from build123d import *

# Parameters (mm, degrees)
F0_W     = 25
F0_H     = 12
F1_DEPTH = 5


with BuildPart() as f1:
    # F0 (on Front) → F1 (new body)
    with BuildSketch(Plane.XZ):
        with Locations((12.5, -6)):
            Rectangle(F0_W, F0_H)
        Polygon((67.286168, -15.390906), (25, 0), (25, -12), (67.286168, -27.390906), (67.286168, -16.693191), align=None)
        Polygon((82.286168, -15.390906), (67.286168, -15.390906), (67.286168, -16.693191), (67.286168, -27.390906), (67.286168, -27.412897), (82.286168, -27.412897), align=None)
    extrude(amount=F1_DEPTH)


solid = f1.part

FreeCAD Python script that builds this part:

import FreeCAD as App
import Part
import Sketcher
from FreeCAD import Vector
Q = App.Units.Quantity

doc = App.newDocument("Part")
body = doc.addObject("PartDesign::Body", "Body")

# Sketch on XZ plane
sketch1 = body.newObject("Sketcher::SketchObject", "Sketch")
sketch1.AttachmentSupport = (doc.getObject("XZ_Plane"), [""])
sketch1.MapMode = "FlatFace"
sketch1.addGeometry([
    Part.LineSegment(Vector(0, 0, 0), Vector(0, -12, 0)),  # 0
    Part.LineSegment(Vector(0, -12, 0), Vector(25, -12, 0)),  # 1
    Part.LineSegment(Vector(25, -12, 0), Vector(67.286168, -27.390906, 0)),  # 2
    Part.LineSegment(Vector(67.286168, -27.390906, 0), Vector(67.286168, -27.412897, 0)),  # 3
    Part.LineSegment(Vector(67.286168, -27.412897, 0), Vector(82.286168, -27.412897, 0)),  # 4
    Part.LineSegment(Vector(82.286168, -27.412897, 0), Vector(82.286168, -15.390906, 0)),  # 5
    Part.LineSegment(Vector(82.286168, -15.390906, 0), Vector(67.286168, -15.390906, 0)),  # 6
    Part.LineSegment(Vector(67.286168, -15.390906, 0), Vector(25, 0, 0)),  # 7
    Part.LineSegment(Vector(25, 0, 0), Vector(0, 0, 0)),  # 8
], False)
sketch1.addConstraint([
    Sketcher.Constraint("Coincident", 0, 2, 1, 1),
    Sketcher.Constraint("Coincident", 1, 2, 2, 1),
    Sketcher.Constraint("Coincident", 2, 2, 3, 1),
    Sketcher.Constraint("Coincident", 3, 2, 4, 1),
    Sketcher.Constraint("Coincident", 4, 2, 5, 1),
    Sketcher.Constraint("Coincident", 5, 2, 6, 1),
    Sketcher.Constraint("Coincident", 6, 2, 7, 1),
    Sketcher.Constraint("Coincident", 7, 2, 8, 1),
    Sketcher.Constraint("Coincident", 8, 2, 0, 1),
    Sketcher.Constraint("Vertical", 0),
    Sketcher.Constraint("Horizontal", 1),
    Sketcher.Constraint("Vertical", 3),
    Sketcher.Constraint("Horizontal", 4),
    Sketcher.Constraint("Vertical", 5),
    Sketcher.Constraint("Horizontal", 6),
    Sketcher.Constraint("Horizontal", 8),
    Sketcher.Constraint("Coincident", 8, 2, -1, 1),
    Sketcher.Constraint("Parallel", 2, 7),
    Sketcher.Constraint("Vertical", 3, 2, 6, 2),
    Sketcher.Constraint("Vertical", 1, 2, 7, 2),
    Sketcher.Constraint("DistanceX", 1, 1, 1, 2, 25.0),
    Sketcher.Constraint("DistanceX", 4, 1, 4, 2, 15.0),
    Sketcher.Constraint("DistanceY", 0, 2, 0, 1, 12.0),
    Sketcher.Constraint("Angle", 2, Q("-19.999999 deg")),
    Sketcher.Constraint("Distance", 2, 45.0),
    Sketcher.Constraint("DistanceY", 3, 2, 3, 1, 0.021991),
])
pad1 = body.newObject("PartDesign::Pad", "Pad")
pad1.Profile = sketch1
pad1.Length = 5

doc.recompute()
